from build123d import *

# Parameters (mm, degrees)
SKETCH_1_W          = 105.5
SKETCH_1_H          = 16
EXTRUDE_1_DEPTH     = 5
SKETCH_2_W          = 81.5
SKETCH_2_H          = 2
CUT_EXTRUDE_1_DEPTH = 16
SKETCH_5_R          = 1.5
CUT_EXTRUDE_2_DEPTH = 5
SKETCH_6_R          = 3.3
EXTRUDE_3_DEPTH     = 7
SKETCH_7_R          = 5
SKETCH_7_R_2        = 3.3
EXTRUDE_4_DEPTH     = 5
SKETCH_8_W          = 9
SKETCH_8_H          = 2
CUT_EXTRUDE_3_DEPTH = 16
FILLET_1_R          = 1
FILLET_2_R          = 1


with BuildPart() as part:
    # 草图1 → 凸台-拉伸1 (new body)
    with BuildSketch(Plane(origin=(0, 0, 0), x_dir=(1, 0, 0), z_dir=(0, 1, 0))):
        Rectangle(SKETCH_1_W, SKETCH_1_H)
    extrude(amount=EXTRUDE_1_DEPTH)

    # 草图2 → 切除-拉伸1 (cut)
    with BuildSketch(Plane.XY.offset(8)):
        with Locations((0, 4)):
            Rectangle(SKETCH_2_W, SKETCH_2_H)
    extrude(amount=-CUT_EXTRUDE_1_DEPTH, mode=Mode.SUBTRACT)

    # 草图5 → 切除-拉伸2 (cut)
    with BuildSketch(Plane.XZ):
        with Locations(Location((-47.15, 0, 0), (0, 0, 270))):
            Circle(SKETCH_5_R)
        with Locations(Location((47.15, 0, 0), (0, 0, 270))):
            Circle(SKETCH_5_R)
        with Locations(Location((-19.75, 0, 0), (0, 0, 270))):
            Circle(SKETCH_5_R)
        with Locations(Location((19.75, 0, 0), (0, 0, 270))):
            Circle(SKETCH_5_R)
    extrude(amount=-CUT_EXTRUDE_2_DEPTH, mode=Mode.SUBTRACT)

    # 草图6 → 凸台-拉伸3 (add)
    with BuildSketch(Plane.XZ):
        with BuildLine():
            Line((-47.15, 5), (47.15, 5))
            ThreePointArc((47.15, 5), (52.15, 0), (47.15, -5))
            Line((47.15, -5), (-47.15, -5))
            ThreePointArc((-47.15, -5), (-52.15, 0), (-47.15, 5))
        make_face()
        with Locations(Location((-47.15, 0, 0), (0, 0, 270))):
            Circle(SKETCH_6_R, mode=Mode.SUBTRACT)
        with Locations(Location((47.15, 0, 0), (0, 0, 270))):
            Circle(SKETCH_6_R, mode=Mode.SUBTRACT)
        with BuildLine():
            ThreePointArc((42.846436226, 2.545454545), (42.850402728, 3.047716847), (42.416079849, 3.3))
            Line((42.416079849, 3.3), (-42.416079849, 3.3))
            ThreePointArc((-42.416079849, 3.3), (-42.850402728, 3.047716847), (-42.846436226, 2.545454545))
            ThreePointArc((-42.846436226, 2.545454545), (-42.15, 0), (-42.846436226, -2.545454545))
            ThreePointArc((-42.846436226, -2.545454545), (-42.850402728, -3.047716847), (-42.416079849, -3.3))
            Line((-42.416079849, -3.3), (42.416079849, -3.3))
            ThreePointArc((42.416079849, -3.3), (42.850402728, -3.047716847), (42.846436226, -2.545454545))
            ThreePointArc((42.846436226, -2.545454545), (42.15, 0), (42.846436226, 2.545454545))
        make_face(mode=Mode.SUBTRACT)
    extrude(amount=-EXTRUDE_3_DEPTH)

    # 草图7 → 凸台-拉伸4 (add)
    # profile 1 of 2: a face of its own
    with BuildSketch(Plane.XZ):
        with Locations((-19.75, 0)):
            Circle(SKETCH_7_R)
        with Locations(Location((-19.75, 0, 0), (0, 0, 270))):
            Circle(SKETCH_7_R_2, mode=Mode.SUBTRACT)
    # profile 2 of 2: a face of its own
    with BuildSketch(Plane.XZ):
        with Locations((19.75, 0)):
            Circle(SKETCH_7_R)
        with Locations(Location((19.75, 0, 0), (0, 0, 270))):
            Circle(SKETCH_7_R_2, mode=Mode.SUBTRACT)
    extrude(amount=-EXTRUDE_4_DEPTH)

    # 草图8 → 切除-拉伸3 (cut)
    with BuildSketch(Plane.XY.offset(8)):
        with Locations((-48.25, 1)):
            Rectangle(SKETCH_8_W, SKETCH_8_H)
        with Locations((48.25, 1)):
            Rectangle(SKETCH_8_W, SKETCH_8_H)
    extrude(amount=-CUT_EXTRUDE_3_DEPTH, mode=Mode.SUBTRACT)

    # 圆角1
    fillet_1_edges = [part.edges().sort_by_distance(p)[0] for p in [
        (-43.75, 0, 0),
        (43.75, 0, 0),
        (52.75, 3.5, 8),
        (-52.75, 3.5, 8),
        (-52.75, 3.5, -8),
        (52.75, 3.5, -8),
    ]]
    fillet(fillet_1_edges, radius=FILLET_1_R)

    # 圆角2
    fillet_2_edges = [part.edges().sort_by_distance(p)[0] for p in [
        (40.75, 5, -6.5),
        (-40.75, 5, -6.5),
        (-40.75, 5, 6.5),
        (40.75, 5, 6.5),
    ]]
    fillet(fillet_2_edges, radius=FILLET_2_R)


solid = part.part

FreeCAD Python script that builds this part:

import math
import FreeCAD as App
import Part
import Sketcher

V = App.Vector
Q = App.Units.Quantity


def edges_at(feature, points):
    """Names of the edges that pass closest to the given points."""
    edges = feature.Shape.Edges
    near = lambda p: min(range(len(edges)), key=lambda i: edges[i].distToShape(Part.Vertex(*p))[0])
    return sorted({f"Edge{near(p) + 1}" for p in points})


def add_polygon(sketch, points):
    """Adds a closed chain of lines whose ends are joined by coincident constraints."""
    first, n = sketch.GeometryCount, len(points)
    for a, b in zip(points, points[1:] + points[:1]):
        sketch.addGeometry(Part.LineSegment(App.Vector(*a, 0), App.Vector(*b, 0)), False)
    for i in range(n):
        sketch.addConstraint(Sketcher.Constraint("Coincident", first + i, 2, first + (i + 1) % n, 1))

doc = App.newDocument("Part")
body = doc.addObject("PartDesign::Body", "Body")

sketch1 = doc.addObject("Sketcher::SketchObject", "Sketch")
body.addObject(sketch1)
sketch1.AttachmentSupport = (doc.XZ_Plane, [""])
sketch1.MapMode = "FlatFace"
add_polygon(sketch1, [(-53, -8), (-53, 8), (53, 8), (53, -8)])
sketch1.addConstraint(Sketcher.Constraint("Vertical", 0))
sketch1.addConstraint(Sketcher.Constraint("Horizontal", 1))
sketch1.addConstraint(Sketcher.Constraint("Vertical", 2))
sketch1.addConstraint(Sketcher.Constraint("Horizontal", 3))
sketch1.addConstraint(Sketcher.Constraint("Symmetric", 0, 2, 2, 2, -1, 1))
sketch1.addConstraint(Sketcher.Constraint("DistanceY", 0, 1, 0, 2, Q("16 mm")))
sketch1.addConstraint(Sketcher.Constraint("DistanceX", 1, 1, 1, 2, Q("105.5 mm")))
pad1 = doc.addObject("PartDesign::Pad", "Pad")
body.addObject(pad1)
pad1.Profile = sketch1
pad1.Length = 5
pad1.Reversed = True

sketch2 = doc.addObject("Sketcher::SketchObject", "Sketch001")
body.addObject(sketch2)
sketch2.AttachmentSupport = (doc.XY_Plane, [""])
sketch2.MapMode = "FlatFace"
sketch2.AttachmentOffset = App.Placement(V(0, 0, 8), App.Rotation())
add_polygon(sketch2, [(-40.8, 5), (-40.8, 3), (40.8, 3), (40.8, 5)])
sketch2.addConstraint(Sketcher.Constraint("Vertical", 0))
sketch2.addConstraint(Sketcher.Constraint("Horizontal", 1))
sketch2.addConstraint(Sketcher.Constraint("Vertical", 2))
sketch2.addConstraint(Sketcher.Constraint("Horizontal", 3))
sketch2.addConstraint(Sketcher.Constraint("DistanceY", 0, 2, 0, 1, Q("2 mm")))
sketch2.addConstraint(Sketcher.Constraint("DistanceX", 1, 1, 1, 2, Q("81.5 mm")))
sketch2.addConstraint(Sketcher.Constraint("DistanceY", -1, 1, 0, 2, Q("3 mm")))
sketch2.addConstraint(Sketcher.Constraint("DistanceX", 0, 2, -1, 1, Q("40.75 mm")))
pocket1 = doc.addObject("PartDesign::Pocket", "Pocket")
body.addObject(pocket1)
pocket1.Profile = sketch2
pocket1.Length = 16

sketch3 = doc.addObject("Sketcher::SketchObject", "Sketch002")
body.addObject(sketch3)
sketch3.AttachmentSupport = (doc.XZ_Plane, [""])
sketch3.MapMode = "FlatFace"
sketch3.addGeometry(Part.Circle(V(-47.1, 0, 0), V(0, 0, 1), 1.5), False)
sketch3.addGeometry(Part.Circle(V(47.1, 0, 0), V(0, 0, 1), 1.5), False)
sketch3.addGeometry(Part.Circle(V(-19.8, 0, 0), V(0, 0, 1), 1.5), False)
sketch3.addGeometry(Part.Circle(V(19.8, 0, 0), V(0, 0, 1), 1.5), False)
sketch3.addConstraint(Sketcher.Constraint("Equal", 0, 1))
sketch3.addConstraint(Sketcher.Constraint("Equal", 1, 2))
sketch3.addConstraint(Sketcher.Constraint("Equal", 2, 3))
sketch3.addConstraint(Sketcher.Constraint("Symmetric", 0, 3, 1, 3, -1, 1))
sketch3.addConstraint(Sketcher.Constraint("Symmetric", 2, 3, 3, 3, -1, 1))
sketch3.addConstraint(Sketcher.Constraint("PointOnObject", 0, 3, -1))
sketch3.addConstraint(Sketcher.Constraint("PointOnObject", 2, 3, -1))
sketch3.addConstraint(Sketcher.Constraint("Diameter", 0, Q("3 mm")))
sketch3.addConstraint(Sketcher.Constraint("DistanceX", 0, 3, 1, 3, Q("94.3 mm")))
sketch3.addConstraint(Sketcher.Constraint("DistanceX", 0, 3, 2, 3, Q("27.4 mm")))
pocket2 = doc.addObject("PartDesign::Pocket", "Pocket001")
body.addObject(pocket2)
pocket2.Profile = sketch3
pocket2.Length = 5

sketch4 = doc.addObject("Sketcher::SketchObject", "Sketch003")
body.addObject(sketch4)
sketch4.AttachmentSupport = (doc.XZ_Plane, [""])
sketch4.MapMode = "FlatFace"
sketch4.addGeometry(Part.LineSegment(V(47.1, 5, 0), V(-47.1, 5, 0)), False)
sketch4.addGeometry(Part.ArcOfCircle(Part.Circle(V(-47.1, 0, 0), V(0, 0, 1), 5), math.radians(90), math.radians(270)), False)
sketch4.addGeometry(Part.LineSegment(V(-47.1, -5, 0), V(47.1, -5, 0)), False)
sketch4.addGeometry(Part.ArcOfCircle(Part.Circle(V(47.1, 0, 0), V(0, 0, 1), 5), math.radians(-90), math.radians(90)), False)
sketch4.addGeometry(Part.Circle(V(47.1, 0, 0), V(0, 0, 1), 3.3), False)
sketch4.addGeometry(Part.ArcOfCircle(Part.Circle(V(47.1, 0, 0), V(0, 0, 1), 5), math.radians(149), math.radians(211)), False)
sketch4.addGeometry(Part.ArcOfCircle(Part.Circle(V(42.4, -2.8, 0), V(0, 0, 1), 0.5), math.radians(-90), math.radians(31)), False)
sketch4.addGeometry(Part.LineSegment(V(42.4, -3.3, 0), V(-42.4, -3.3, 0)), False)
sketch4.addGeometry(Part.ArcOfCircle(Part.Circle(V(-42.4, -2.8, 0), V(0, 0, 1), 0.5), math.radians(149), math.radians(270)), False)
sketch4.addGeometry(Part.ArcOfCircle(Part.Circle(V(-47.1, 0, 0), V(0, 0, 1), 5), math.radians(-31), math.radians(31)), False)
sketch4.addGeometry(Part.ArcOfCircle(Part.Circle(V(-42.4, 2.8, 0), V(0, 0, 1), 0.5), math.radians(90), math.radians(211)), False)
sketch4.addGeometry(Part.LineSegment(V(-42.4, 3.3, 0), V(42.4, 3.3, 0)), False)
sketch4.addGeometry(Part.ArcOfCircle(Part.Circle(V(42.4, 2.8, 0), V(0, 0, 1), 0.5), math.radians(-31), math.radians(90)), False)
sketch4.addGeometry(Part.Circle(V(-47.1, 0, 0), V(0, 0, 1), 3.3), False)
sketch4.addConstraint(Sketcher.Constraint("Tangent", 0, 2, 1, 1))
sketch4.addConstraint(Sketcher.Constraint("Tangent", 1, 2, 2, 1))
sketch4.addConstraint(Sketcher.Constraint("Tangent", 2, 2, 3, 1))
sketch4.addConstraint(Sketcher.Constraint("Tangent", 3, 2, 0, 1))
sketch4.addConstraint(Sketcher.Constraint("Tangent", 5, 2, 6, 2))
sketch4.addConstraint(Sketcher.Constraint("Tangent", 6, 1, 7, 1))
sketch4.addConstraint(Sketcher.Constraint("Tangent", 7, 2, 8, 2))
sketch4.addConstraint(Sketcher.Constraint("Tangent", 8, 1, 9, 1))
sketch4.addConstraint(Sketcher.Constraint("Tangent", 9, 2, 10, 2))
sketch4.addConstraint(Sketcher.Constraint("Tangent", 10, 1, 11, 1))
sketch4.addConstraint(Sketcher.Constraint("Tangent", 11, 2, 12, 2))
sketch4.addConstraint(Sketcher.Constraint("Tangent", 12, 1, 5, 1))
sketch4.addConstraint(Sketcher.Constraint("Horizontal", 0))
sketch4.addConstraint(Sketcher.Constraint("Horizontal", 2))
sketch4.addConstraint(Sketcher.Constraint("Horizontal", 7))
sketch4.addConstraint(Sketcher.Constraint("Horizontal", 11))
sketch4.addConstraint(Sketcher.Constraint("Coincident", 4, 3, 3, 3))
sketch4.addConstraint(Sketcher.Constraint("Coincident", 5, 3, 3, 3))
sketch4.addConstraint(Sketcher.Constraint("Coincident", 9, 3, 1, 3))
sketch4.addConstraint(Sketcher.Constraint("Coincident", 13, 3, 1, 3))
sketch4.addConstraint(Sketcher.Constraint("Equal", 3, 5))
sketch4.addConstraint(Sketcher.Constraint("Equal", 6, 8))
sketch4.addConstraint(Sketcher.Constraint("Equal", 5, 9))
sketch4.addConstraint(Sketcher.Constraint("Equal", 8, 10))
sketch4.addConstraint(Sketcher.Constraint("Equal", 10, 12))
sketch4.addConstraint(Sketcher.Constraint("Equal", 4, 13))
sketch4.addConstraint(Sketcher.Constraint("Symmetric", 1, 3, 3, 3, -1, 1))
sketch4.addConstraint(Sketcher.Constraint("Vertical", 8, 3, 10, 3))
sketch4.addConstraint(Sketcher.Constraint("Radius", 1, Q("5 mm")))
sketch4.addConstraint(Sketcher.Constraint("Diameter", 4, Q("6.6 mm")))
sketch4.addConstraint(Sketcher.Constraint("Radius", 6, Q("0.5 mm")))
sketch4.addConstraint(Sketcher.Constraint("DistanceX", 0, 2, 0, 1, Q("94.3 mm")))
sketch4.addConstraint(Sketcher.Constraint("DistanceY", 6, 3, -1, 1, Q("2.8 mm")))
pad2 = doc.addObject("PartDesign::Pad", "Pad001")
body.addObject(pad2)
pad2.Profile = sketch4
pad2.Length = 7
pad2.Reversed = True

sketch5 = doc.addObject("Sketcher::SketchObject", "Sketch004")
body.addObject(sketch5)
sketch5.AttachmentSupport = (doc.XZ_Plane, [""])
sketch5.MapMode = "FlatFace"
sketch5.addGeometry(Part.Circle(V(-19.8, 0, 0), V(0, 0, 1), 5), False)
sketch5.addGeometry(Part.Circle(V(-19.8, 0, 0), V(0, 0, 1), 3.3), False)
sketch5.addGeometry(Part.Circle(V(19.8, 0, 0), V(0, 0, 1), 5), False)
sketch5.addGeometry(Part.Circle(V(19.8, 0, 0), V(0, 0, 1), 3.3), False)
sketch5.addConstraint(Sketcher.Constraint("Coincident", 1, 3, 0, 3))
sketch5.addConstraint(Sketcher.Constraint("Coincident", 3, 3, 2, 3))
sketch5.addConstraint(Sketcher.Constraint("Equal", 0, 2))
sketch5.addConstraint(Sketcher.Constraint("Equal", 1, 3))
sketch5.addConstraint(Sketcher.Constraint("Symmetric", 0, 3, 2, 3, -1, 1))
sketch5.addConstraint(Sketcher.Constraint("PointOnObject", 0, 3, -1))
sketch5.addConstraint(Sketcher.Constraint("Diameter", 0, Q("10 mm")))
sketch5.addConstraint(Sketcher.Constraint("Diameter", 1, Q("6.6 mm")))
sketch5.addConstraint(Sketcher.Constraint("DistanceX", 0, 3, 2, 3, Q("39.5 mm")))
pad3 = doc.addObject("PartDesign::Pad", "Pad002")
body.addObject(pad3)
pad3.Profile = sketch5
pad3.Length = 5
pad3.Reversed = True

sketch6 = doc.addObject("Sketcher::SketchObject", "Sketch005")
body.addObject(sketch6)
sketch6.AttachmentSupport = (doc.XY_Plane, [""])
sketch6.MapMode = "FlatFace"
sketch6.AttachmentOffset = App.Placement(V(0, 0, 8), App.Rotation())
add_polygon(sketch6, [(-52.8, 2), (-52.8, 0), (-43.8, 0), (-43.8, 2)])
add_polygon(sketch6, [(43.8, 2), (43.8, 0), (52.8, 0), (52.8, 2)])
sketch6.addConstraint(Sketcher.Constraint("Vertical", 0))
sketch6.addConstraint(Sketcher.Constraint("Horizontal", 1))
sketch6.addConstraint(Sketcher.Constraint("Vertical", 2))
sketch6.addConstraint(Sketcher.Constraint("Horizontal", 3))
sketch6.addConstraint(Sketcher.Constraint("Vertical", 4))
sketch6.addConstraint(Sketcher.Constraint("Horizontal", 5))
sketch6.addConstraint(Sketcher.Constraint("Vertical", 6))
sketch6.addConstraint(Sketcher.Constraint("Horizontal", 7))
sketch6.addConstraint(Sketcher.Constraint("Symmetric", 1, 2, 4, 2, -1, 1))
sketch6.addConstraint(Sketcher.Constraint("Symmetric", 0, 2, 5, 2, -2))
sketch6.addConstraint(Sketcher.Constraint("Horizontal", 3, 2, 6, 2))
sketch6.addConstraint(Sketcher.Constraint("DistanceX", 1, 1, 1, 2, Q("9 mm")))
sketch6.addConstraint(Sketcher.Constraint("DistanceY", 0, 2, 0, 1, Q("2 mm")))
sketch6.addConstraint(Sketcher.Constraint("DistanceX", 1, 2, 4, 2, Q("87.5 mm")))
pocket3 = doc.addObject("PartDesign::Pocket", "Pocket002")
body.addObject(pocket3)
pocket3.Profile = sketch6
pocket3.Length = 16
doc.recompute()

fillet = doc.addObject("PartDesign::Fillet", "Fillet")
body.addObject(fillet)
fillet.Base = (pocket3, edges_at(pocket3, [
    (-43.75, 0, 0),
    (43.75, 0, 0),
    (52.75, 3.5, 8),
    (-52.75, 3.5, 8),
    (-52.75, 3.5, -8),
    (52.75, 3.5, -8),
]))
fillet.Radius = 1
doc.recompute()

fillet2 = doc.addObject("PartDesign::Fillet", "Fillet001")
body.addObject(fillet2)
fillet2.Base = (fillet, edges_at(fillet, [
    (40.75, 5, -6.5),
    (-40.75, 5, -6.5),
    (-40.75, 5, 6.5),
    (40.75, 5, 6.5),
]))
fillet2.Radius = 1

doc.recompute()
